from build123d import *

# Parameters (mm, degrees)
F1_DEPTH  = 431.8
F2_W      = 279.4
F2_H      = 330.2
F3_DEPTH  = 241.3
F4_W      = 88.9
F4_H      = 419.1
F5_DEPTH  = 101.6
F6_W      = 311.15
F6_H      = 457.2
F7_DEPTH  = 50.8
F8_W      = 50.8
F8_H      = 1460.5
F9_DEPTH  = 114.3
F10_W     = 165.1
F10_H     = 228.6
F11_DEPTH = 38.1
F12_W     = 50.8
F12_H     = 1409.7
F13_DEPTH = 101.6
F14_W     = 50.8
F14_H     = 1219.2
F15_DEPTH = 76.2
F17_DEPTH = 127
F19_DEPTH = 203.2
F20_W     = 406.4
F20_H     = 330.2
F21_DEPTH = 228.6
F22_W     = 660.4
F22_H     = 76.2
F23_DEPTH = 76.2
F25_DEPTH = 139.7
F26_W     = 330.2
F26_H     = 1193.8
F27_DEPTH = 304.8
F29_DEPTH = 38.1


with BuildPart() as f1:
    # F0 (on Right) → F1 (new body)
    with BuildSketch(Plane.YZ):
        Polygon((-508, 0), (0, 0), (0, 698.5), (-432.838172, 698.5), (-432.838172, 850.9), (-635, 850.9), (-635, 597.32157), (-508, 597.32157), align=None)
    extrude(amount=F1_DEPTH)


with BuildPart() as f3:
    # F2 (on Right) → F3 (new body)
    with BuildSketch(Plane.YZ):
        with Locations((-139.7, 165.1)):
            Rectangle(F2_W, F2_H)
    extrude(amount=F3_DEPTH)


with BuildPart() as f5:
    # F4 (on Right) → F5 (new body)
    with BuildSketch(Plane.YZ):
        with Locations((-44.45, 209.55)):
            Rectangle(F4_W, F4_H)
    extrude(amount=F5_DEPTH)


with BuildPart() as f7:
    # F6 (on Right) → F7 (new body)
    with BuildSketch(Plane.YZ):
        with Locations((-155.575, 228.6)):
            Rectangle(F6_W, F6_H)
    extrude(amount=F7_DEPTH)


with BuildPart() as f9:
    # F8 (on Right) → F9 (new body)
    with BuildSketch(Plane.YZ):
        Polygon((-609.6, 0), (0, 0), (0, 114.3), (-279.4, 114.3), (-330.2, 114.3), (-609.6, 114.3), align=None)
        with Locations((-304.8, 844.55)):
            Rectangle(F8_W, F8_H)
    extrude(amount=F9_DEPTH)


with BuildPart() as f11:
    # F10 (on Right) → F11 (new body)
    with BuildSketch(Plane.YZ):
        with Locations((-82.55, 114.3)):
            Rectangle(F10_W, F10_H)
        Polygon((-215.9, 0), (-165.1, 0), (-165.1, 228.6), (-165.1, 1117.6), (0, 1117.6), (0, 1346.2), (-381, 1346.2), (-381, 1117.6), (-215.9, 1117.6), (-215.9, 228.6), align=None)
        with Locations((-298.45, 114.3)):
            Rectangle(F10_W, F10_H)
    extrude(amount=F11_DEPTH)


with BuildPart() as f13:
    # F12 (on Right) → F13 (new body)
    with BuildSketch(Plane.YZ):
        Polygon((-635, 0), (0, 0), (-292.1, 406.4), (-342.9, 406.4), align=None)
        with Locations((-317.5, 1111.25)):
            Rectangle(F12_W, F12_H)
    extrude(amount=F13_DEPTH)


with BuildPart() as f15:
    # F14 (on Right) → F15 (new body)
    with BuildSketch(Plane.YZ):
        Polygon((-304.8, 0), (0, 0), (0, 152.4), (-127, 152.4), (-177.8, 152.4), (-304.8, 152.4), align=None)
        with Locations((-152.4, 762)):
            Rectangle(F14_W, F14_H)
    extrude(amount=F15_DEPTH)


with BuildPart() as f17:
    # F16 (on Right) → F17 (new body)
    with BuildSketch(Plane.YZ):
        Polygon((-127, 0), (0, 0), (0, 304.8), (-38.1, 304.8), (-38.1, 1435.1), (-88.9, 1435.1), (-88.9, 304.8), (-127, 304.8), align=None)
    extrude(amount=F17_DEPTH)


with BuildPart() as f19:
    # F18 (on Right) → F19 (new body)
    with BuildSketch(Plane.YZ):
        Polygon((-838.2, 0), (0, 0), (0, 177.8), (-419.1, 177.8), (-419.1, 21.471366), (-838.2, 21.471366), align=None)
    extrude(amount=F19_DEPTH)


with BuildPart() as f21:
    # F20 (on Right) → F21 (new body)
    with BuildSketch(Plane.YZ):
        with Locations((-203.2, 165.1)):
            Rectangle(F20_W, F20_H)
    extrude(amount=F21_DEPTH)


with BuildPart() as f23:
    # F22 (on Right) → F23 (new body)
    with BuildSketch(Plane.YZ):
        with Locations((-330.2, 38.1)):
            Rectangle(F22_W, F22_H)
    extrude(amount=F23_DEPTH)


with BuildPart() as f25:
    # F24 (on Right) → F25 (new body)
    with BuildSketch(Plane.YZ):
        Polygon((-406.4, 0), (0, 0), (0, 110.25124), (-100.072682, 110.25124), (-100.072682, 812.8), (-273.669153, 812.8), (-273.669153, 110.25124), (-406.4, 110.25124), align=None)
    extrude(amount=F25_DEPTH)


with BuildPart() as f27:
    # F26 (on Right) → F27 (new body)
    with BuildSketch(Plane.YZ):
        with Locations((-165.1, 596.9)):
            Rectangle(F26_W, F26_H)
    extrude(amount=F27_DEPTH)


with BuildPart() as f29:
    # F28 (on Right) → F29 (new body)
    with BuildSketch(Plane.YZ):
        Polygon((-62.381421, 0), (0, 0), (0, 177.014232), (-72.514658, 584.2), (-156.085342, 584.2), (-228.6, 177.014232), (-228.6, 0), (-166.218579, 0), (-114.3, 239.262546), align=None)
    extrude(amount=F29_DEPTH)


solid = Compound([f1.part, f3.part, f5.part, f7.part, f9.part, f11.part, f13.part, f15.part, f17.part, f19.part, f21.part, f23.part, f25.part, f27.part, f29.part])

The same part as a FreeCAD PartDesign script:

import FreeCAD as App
import Part
import Sketcher
from FreeCAD import Vector
Q = App.Units.Quantity


def add_polygon(sketch, points):
    """Adds a closed chain of lines whose ends are joined by coincident constraints."""
    first, n = sketch.GeometryCount, len(points)
    for a, b in zip(points, points[1:] + points[:1]):
        sketch.addGeometry(Part.LineSegment(App.Vector(*a, 0), App.Vector(*b, 0)), False)
    for i in range(n):
        sketch.addConstraint(Sketcher.Constraint("Coincident", first + i, 2, first + (i + 1) % n, 1))

doc = App.newDocument("Part")
body = doc.addObject("PartDesign::Body", "Body")

# Sketch on YZ plane
sketch1 = doc.addObject("Sketcher::SketchObject", "Sketch")
body.addObject(sketch1)
sketch1.AttachmentSupport = (doc.YZ_Plane, [""])
sketch1.MapMode = "FlatFace"
add_polygon(sketch1, [(-508, 0), (0, 0), (0, 698), (-433, 698), (-433, 851), (-635, 851), (-635, 597), (-508, 597)])  # lines 0-7
sketch1.addConstraint(Sketcher.Constraint("Horizontal", 0))
sketch1.addConstraint(Sketcher.Constraint("Vertical", 1))
sketch1.addConstraint(Sketcher.Constraint("Horizontal", 2))
sketch1.addConstraint(Sketcher.Constraint("Vertical", 3))
sketch1.addConstraint(Sketcher.Constraint("Horizontal", 4))
sketch1.addConstraint(Sketcher.Constraint("Vertical", 5))
sketch1.addConstraint(Sketcher.Constraint("Horizontal", 6))
sketch1.addConstraint(Sketcher.Constraint("Vertical", 7))
sketch1.addConstraint(Sketcher.Constraint("Coincident", 0, 2, -1, 1))
sketch1.addConstraint(Sketcher.Constraint("DistanceX", 0, 1, 0, 2, Q("20 in")))
sketch1.addConstraint(Sketcher.Constraint("DistanceX", 6, 1, 6, 2, Q("5 in")))
sketch1.addConstraint(Sketcher.Constraint("DistanceY", 3, 1, 3, 2, Q("6 in")))
sketch1.addConstraint(Sketcher.Constraint("DistanceY", 1, 1, 1, 2, Q("27.5 in")))
sketch1.addConstraint(Sketcher.Constraint("DistanceX", 2, 2, 2, 1, 432.838172))
sketch1.addConstraint(Sketcher.Constraint("DistanceY", 5, 2, 5, 1, 253.57843))
pad1 = doc.addObject("PartDesign::Pad", "Pad")
body.addObject(pad1)
pad1.Profile = sketch1
pad1.Length = Q("17 in")
body2 = doc.addObject("PartDesign::Body", "Body001")

# Sketch on YZ plane
sketch2 = doc.addObject("Sketcher::SketchObject", "Sketch001")
body2.addObject(sketch2)
sketch2.AttachmentSupport = (doc.getObject("YZ_Plane001"), [""])
sketch2.MapMode = "FlatFace"
add_polygon(sketch2, [(-279, 330), (-279, 0), (0, 0), (0, 330)])  # lines 0-3
sketch2.addConstraint(Sketcher.Constraint("Vertical", 0))
sketch2.addConstraint(Sketcher.Constraint("Horizontal", 1))
sketch2.addConstraint(Sketcher.Constraint("Vertical", 2))
sketch2.addConstraint(Sketcher.Constraint("Horizontal", 3))
sketch2.addConstraint(Sketcher.Constraint("Coincident", 1, 2, -1, 1))
sketch2.addConstraint(Sketcher.Constraint("DistanceX", 1, 1, 1, 2, Q("11 in")))
sketch2.addConstraint(Sketcher.Constraint("DistanceY", 0, 2, 0, 1, Q("13 in")))
pad2 = doc.addObject("PartDesign::Pad", "Pad001")
body2.addObject(pad2)
pad2.Profile = sketch2
pad2.Length = Q("9.5 in")
body3 = doc.addObject("PartDesign::Body", "Body002")

# Sketch on YZ plane
sketch3 = doc.addObject("Sketcher::SketchObject", "Sketch002")
body3.addObject(sketch3)
sketch3.AttachmentSupport = (doc.getObject("YZ_Plane002"), [""])
sketch3.MapMode = "FlatFace"
add_polygon(sketch3, [(-89, 419), (-89, 0), (0, 0), (0, 419)])  # lines 0-3
sketch3.addConstraint(Sketcher.Constraint("Vertical", 0))
sketch3.addConstraint(Sketcher.Constraint("Horizontal", 1))
sketch3.addConstraint(Sketcher.Constraint("Vertical", 2))
sketch3.addConstraint(Sketcher.Constraint("Horizontal", 3))
sketch3.addConstraint(Sketcher.Constraint("Coincident", 1, 2, -1, 1))
sketch3.addConstraint(Sketcher.Constraint("DistanceX", 1, 1, 1, 2, Q("3.5 in")))
sketch3.addConstraint(Sketcher.Constraint("DistanceY", 0, 2, 0, 1, Q("16.5 in")))
pad3 = doc.addObject("PartDesign::Pad", "Pad002")
body3.addObject(pad3)
pad3.Profile = sketch3
pad3.Length = Q("4 in")
body4 = doc.addObject("PartDesign::Body", "Body003")

# Sketch on YZ plane
sketch4 = doc.addObject("Sketcher::SketchObject", "Sketch003")
body4.addObject(sketch4)
sketch4.AttachmentSupport = (doc.getObject("YZ_Plane003"), [""])
sketch4.MapMode = "FlatFace"
add_polygon(sketch4, [(-311, 457), (-311, 0), (0, 0), (0, 457)])  # lines 0-3
sketch4.addConstraint(Sketcher.Constraint("Vertical", 0))
sketch4.addConstraint(Sketcher.Constraint("Horizontal", 1))
sketch4.addConstraint(Sketcher.Constraint("Vertical", 2))
sketch4.addConstraint(Sketcher.Constraint("Horizontal", 3))
sketch4.addConstraint(Sketcher.Constraint("Coincident", 1, 2, -1, 1))
sketch4.addConstraint(Sketcher.Constraint("DistanceY", 0, 2, 0, 1, Q("18 in")))
sketch4.addConstraint(Sketcher.Constraint("DistanceX", 1, 1, 1, 2, Q("12.25 in")))
pad4 = doc.addObject("PartDesign::Pad", "Pad003")
body4.addObject(pad4)
pad4.Profile = sketch4
pad4.Length = Q("2 in")
body5 = doc.addObject("PartDesign::Body", "Body004")

# Sketch on YZ plane
sketch5 = doc.addObject("Sketcher::SketchObject", "Sketch004")
body5.addObject(sketch5)
sketch5.AttachmentSupport = (doc.getObject("YZ_Plane004"), [""])
sketch5.MapMode = "FlatFace"
add_polygon(sketch5, [(-610, 0), (0, 0), (0, 114), (-279, 114), (-279, 1575), (-330, 1575), (-330, 114), (-610, 114)])  # lines 0-7
sketch5.addConstraint(Sketcher.Constraint("Horizontal", 0))
sketch5.addConstraint(Sketcher.Constraint("Vertical", 1))
sketch5.addConstraint(Sketcher.Constraint("Horizontal", 2))
sketch5.addConstraint(Sketcher.Constraint("Vertical", 3))
sketch5.addConstraint(Sketcher.Constraint("Horizontal", 4))
sketch5.addConstraint(Sketcher.Constraint("Vertical", 5))
sketch5.addConstraint(Sketcher.Constraint("Horizontal", 6))
sketch5.addConstraint(Sketcher.Constraint("Vertical", 7))
sketch5.addConstraint(Sketcher.Constraint("Coincident", 0, 2, -1, 1))
sketch5.addConstraint(Sketcher.Constraint("Horizontal", 2, 2, 5, 2))
sketch5.addConstraint(Sketcher.Constraint("Equal", 2, 6))
sketch5.addConstraint(Sketcher.Constraint("DistanceX", 0, 1, 0, 2, Q("24 in")))
sketch5.addConstraint(Sketcher.Constraint("DistanceX", 2, 2, 2, 1, Q("11 in")))
sketch5.addConstraint(Sketcher.Constraint("DistanceY", 1, 1, 1, 2, Q("4.5 in")))
sketch5.addConstraint(Sketcher.Constraint("DistanceY", 3, 1, 3, 2, Q("57.5 in")))
pad5 = doc.addObject("PartDesign::Pad", "Pad004")
body5.addObject(pad5)
pad5.Profile = sketch5
pad5.Length = Q("4.5 in")
body6 = doc.addObject("PartDesign::Body", "Body005")

# Sketch on YZ plane
sketch6 = doc.addObject("Sketcher::SketchObject", "Sketch005")
body6.addObject(sketch6)
sketch6.AttachmentSupport = (doc.getObject("YZ_Plane005"), [""])
sketch6.MapMode = "FlatFace"
add_polygon(sketch6, [(0, 0), (0, 229), (-165, 229), (-165, 1118), (0, 1118), (0, 1346), (-381, 1346), (-381, 1118), (-216, 1118), (-216, 229), (-381, 229), (-381, 0)])  # lines 0-11
sketch6.addConstraint(Sketcher.Constraint("Vertical", 0))
sketch6.addConstraint(Sketcher.Constraint("Horizontal", 1))
sketch6.addConstraint(Sketcher.Constraint("Vertical", 2))
sketch6.addConstraint(Sketcher.Constraint("Horizontal", 3))
sketch6.addConstraint(Sketcher.Constraint("Vertical", 4))
sketch6.addConstraint(Sketcher.Constraint("Horizontal", 5))
sketch6.addConstraint(Sketcher.Constraint("Vertical", 6))
sketch6.addConstraint(Sketcher.Constraint("Horizontal", 7))
sketch6.addConstraint(Sketcher.Constraint("Vertical", 8))
sketch6.addConstraint(Sketcher.Constraint("Horizontal", 9))
sketch6.addConstraint(Sketcher.Constraint("Vertical", 10))
sketch6.addConstraint(Sketcher.Constraint("Horizontal", 11))
sketch6.addConstraint(Sketcher.Constraint("Coincident", 11, 2, -1, 1))
sketch6.addConstraint(Sketcher.Constraint("PointOnObject", 3, 2, -2))
sketch6.addConstraint(Sketcher.Constraint("Horizontal", 3, 2, 6, 2))
sketch6.addConstraint(Sketcher.Constraint("Horizontal", 1, 2, 8, 2))
sketch6.addConstraint(Sketcher.Constraint("Vertical", 6, 2, 9, 2))
sketch6.addConstraint(Sketcher.Constraint("Equal", 3, 7))
sketch6.addConstraint(Sketcher.Constraint("Equal", 0, 4))
sketch6.addConstraint(Sketcher.Constraint("DistanceX", 5, 2, 5, 1, Q("15 in")))
sketch6.addConstraint(Sketcher.Constraint("DistanceY", 0, 1, 0, 2, Q("9 in")))
sketch6.addConstraint(Sketcher.Constraint("DistanceY", 2, 1, 2, 2, Q("35 in")))
sketch6.addConstraint(Sketcher.Constraint("DistanceX", 1, 2, 1, 1, Q("6.5 in")))
pad6 = doc.addObject("PartDesign::Pad", "Pad005")
body6.addObject(pad6)
pad6.Profile = sketch6
pad6.Length = Q("1.5 in")
body7 = doc.addObject("PartDesign::Body", "Body006")

# Sketch on YZ plane
sketch7 = doc.addObject("Sketcher::SketchObject", "Sketch006")
body7.addObject(sketch7)
sketch7.AttachmentSupport = (doc.getObject("YZ_Plane006"), [""])
sketch7.MapMode = "FlatFace"
add_polygon(sketch7, [(-635, 0), (0, 0), (-292, 406), (-292, 1816), (-343, 1816), (-343, 406)])  # lines 0-5
sketch7.addConstraint(Sketcher.Constraint("Horizontal", 0))
sketch7.addConstraint(Sketcher.Constraint("Vertical", 2))
sketch7.addConstraint(Sketcher.Constraint("Horizontal", 3))
sketch7.addConstraint(Sketcher.Constraint("Vertical", 4))
sketch7.addConstraint(Sketcher.Constraint("Coincident", 0, 2, -1, 1))
sketch7.addConstraint(Sketcher.Constraint("Horizontal", 1, 2, 4, 2))
sketch7.addConstraint(Sketcher.Constraint("Equal", 1, 5))
sketch7.addConstraint(Sketcher.Constraint("DistanceX", 0, 1, 0, 2, Q("25 in")))
sketch7.addConstraint(Sketcher.Constraint("DistanceX", 3, 2, 3, 1, Q("2 in")))
sketch7.addConstraint(Sketcher.Constraint("DistanceY", 2, 1, 2, 2, Q("55.5 in")))
sketch7.addConstraint(Sketcher.Constraint("DistanceY", -1, 1, 1, 2, Q("16 in")))
pad7 = doc.addObject("PartDesign::Pad", "Pad006")
body7.addObject(pad7)
pad7.Profile = sketch7
pad7.Length = Q("4 in")
body8 = doc.addObject("PartDesign::Body", "Body007")

# Sketch on YZ plane
sketch8 = doc.addObject("Sketcher::SketchObject", "Sketch007")
body8.addObject(sketch8)
sketch8.AttachmentSupport = (doc.getObject("YZ_Plane007"), [""])
sketch8.MapMode = "FlatFace"
add_polygon(sketch8, [(-305, 0), (0, 0), (0, 152), (-127, 152), (-127, 1372), (-178, 1372), (-178, 152), (-305, 152)])  # lines 0-7
sketch8.addConstraint(Sketcher.Constraint("Horizontal", 0))
sketch8.addConstraint(Sketcher.Constraint("Vertical", 1))
sketch8.addConstraint(Sketcher.Constraint("Horizontal", 2))
sketch8.addConstraint(Sketcher.Constraint("Vertical", 3))
sketch8.addConstraint(Sketcher.Constraint("Horizontal", 4))
sketch8.addConstraint(Sketcher.Constraint("Vertical", 5))
sketch8.addConstraint(Sketcher.Constraint("Horizontal", 6))
sketch8.addConstraint(Sketcher.Constraint("Vertical", 7))
sketch8.addConstraint(Sketcher.Constraint("Coincident", 0, 2, -1, 1))
sketch8.addConstraint(Sketcher.Constraint("Horizontal", 2, 2, 5, 2))
sketch8.addConstraint(Sketcher.Constraint("Equal", 2, 6))
sketch8.addConstraint(Sketcher.Constraint("DistanceX", 0, 1, 0, 2, Q("12 in")))
sketch8.addConstraint(Sketcher.Constraint("DistanceX", 2, 2, 2, 1, Q("5 in")))
sketch8.addConstraint(Sketcher.Constraint("DistanceY", 1, 1, 1, 2, Q("6 in")))
sketch8.addConstraint(Sketcher.Constraint("DistanceY", 3, 1, 3, 2, Q("48 in")))
pad8 = doc.addObject("PartDesign::Pad", "Pad007")
body8.addObject(pad8)
pad8.Profile = sketch8
pad8.Length = Q("3 in")
body9 = doc.addObject("PartDesign::Body", "Body008")

# Sketch on YZ plane
sketch9 = doc.addObject("Sketcher::SketchObject", "Sketch008")
body9.addObject(sketch9)
sketch9.AttachmentSupport = (doc.getObject("YZ_Plane008"), [""])
sketch9.MapMode = "FlatFace"
add_polygon(sketch9, [(-127, 0), (0, 0), (0, 305), (-38, 305), (-38, 1435), (-89, 1435), (-89, 305), (-127, 305)])  # lines 0-7
sketch9.addConstraint(Sketcher.Constraint("Horizontal", 0))
sketch9.addConstraint(Sketcher.Constraint("Vertical", 1))
sketch9.addConstraint(Sketcher.Constraint("Horizontal", 2))
sketch9.addConstraint(Sketcher.Constraint("Vertical", 3))
sketch9.addConstraint(Sketcher.Constraint("Horizontal", 4))
sketch9.addConstraint(Sketcher.Constraint("Vertical", 5))
sketch9.addConstraint(Sketcher.Constraint("Horizontal", 6))
sketch9.addConstraint(Sketcher.Constraint("Vertical", 7))
sketch9.addConstraint(Sketcher.Constraint("Coincident", 0, 2, -1, 1))
sketch9.addConstraint(Sketcher.Constraint("Horizontal", 2, 2, 5, 2))
sketch9.addConstraint(Sketcher.Constraint("Equal", 2, 6))
sketch9.addConstraint(Sketcher.Constraint("DistanceX", 0, 1, 0, 2, Q("5 in")))
sketch9.addConstraint(Sketcher.Constraint("DistanceX", 4, 2, 4, 1, Q("2 in")))
sketch9.addConstraint(Sketcher.Constraint("DistanceY", 1, 1, 1, 2, Q("12 in")))
sketch9.addConstraint(Sketcher.Constraint("DistanceY", 3, 1, 3, 2, Q("44.5 in")))
pad9 = doc.addObject("PartDesign::Pad", "Pad008")
body9.addObject(pad9)
pad9.Profile = sketch9
pad9.Length = Q("5 in")
body10 = doc.addObject("PartDesign::Body", "Body009")

# Sketch on YZ plane
sketch10 = doc.addObject("Sketcher::SketchObject", "Sketch009")
body10.addObject(sketch10)
sketch10.AttachmentSupport = (doc.getObject("YZ_Plane009"), [""])
sketch10.MapMode = "FlatFace"
add_polygon(sketch10, [(-838, 0), (0, 0), (0, 178), (-419, 178), (-419, 21), (-838, 21)])  # lines 0-5
sketch10.addConstraint(Sketcher.Constraint("Horizontal", 0))
sketch10.addConstraint(Sketcher.Constraint("Vertical", 1))
sketch10.addConstraint(Sketcher.Constraint("Horizontal", 2))
sketch10.addConstraint(Sketcher.Constraint("Vertical", 3))
sketch10.addConstraint(Sketcher.Constraint("Horizontal", 4))
sketch10.addConstraint(Sketcher.Constraint("Vertical", 5))
sketch10.addConstraint(Sketcher.Constraint("Coincident", 0, 2, -1, 1))
sketch10.addConstraint(Sketcher.Constraint("Equal", 2, 4))
sketch10.addConstraint(Sketcher.Constraint("DistanceX", 0, 1, 0, 2, Q("33 in")))
sketch10.addConstraint(Sketcher.Constraint("DistanceY", 1, 1, 1, 2, Q("7 in")))
sketch10.addConstraint(Sketcher.Constraint("DistanceY", 3, 2, 3, 1, 156.328634))
pad10 = doc.addObject("PartDesign::Pad", "Pad009")
body10.addObject(pad10)
pad10.Profile = sketch10
pad10.Length = Q("8 in")
body11 = doc.addObject("PartDesign::Body", "Body010")

# Sketch on YZ plane
sketch11 = doc.addObject("Sketcher::SketchObject", "Sketch010")
body11.addObject(sketch11)
sketch11.AttachmentSupport = (doc.getObject("YZ_Plane010"), [""])
sketch11.MapMode = "FlatFace"
add_polygon(sketch11, [(-406, 330), (-406, 0), (0, 0), (0, 330)])  # lines 0-3
sketch11.addConstraint(Sketcher.Constraint("Vertical", 0))
sketch11.addConstraint(Sketcher.Constraint("Horizontal", 1))
sketch11.addConstraint(Sketcher.Constraint("Vertical", 2))
sketch11.addConstraint(Sketcher.Constraint("Horizontal", 3))
sketch11.addConstraint(Sketcher.Constraint("Coincident", 1, 2, -1, 1))
sketch11.addConstraint(Sketcher.Constraint("DistanceX", 1, 1, 1, 2, Q("16 in")))
sketch11.addConstraint(Sketcher.Constraint("DistanceY", 0, 2, 0, 1, Q("13 in")))
pad11 = doc.addObject("PartDesign::Pad", "Pad010")
body11.addObject(pad11)
pad11.Profile = sketch11
pad11.Length = Q("9 in")
body12 = doc.addObject("PartDesign::Body", "Body011")

# Sketch on YZ plane
sketch12 = doc.addObject("Sketcher::SketchObject", "Sketch011")
body12.addObject(sketch12)
sketch12.AttachmentSupport = (doc.getObject("YZ_Plane011"), [""])
sketch12.MapMode = "FlatFace"
add_polygon(sketch12, [(-660, 76), (-660, 0), (0, 0), (0, 76)])  # lines 0-3
sketch12.addConstraint(Sketcher.Constraint("Vertical", 0))
sketch12.addConstraint(Sketcher.Constraint("Horizontal", 1))
sketch12.addConstraint(Sketcher.Constraint("Vertical", 2))
sketch12.addConstraint(Sketcher.Constraint("Horizontal", 3))
sketch12.addConstraint(Sketcher.Constraint("Coincident", 1, 2, -1, 1))
sketch12.addConstraint(Sketcher.Constraint("DistanceX", 1, 1, 1, 2, Q("26 in")))
sketch12.addConstraint(Sketcher.Constraint("DistanceY", 0, 2, 0, 1, Q("3 in")))
pad12 = doc.addObject("PartDesign::Pad", "Pad011")
body12.addObject(pad12)
pad12.Profile = sketch12
pad12.Length = Q("3 in")
body13 = doc.addObject("PartDesign::Body", "Body012")

# Sketch on YZ plane
sketch13 = doc.addObject("Sketcher::SketchObject", "Sketch012")
body13.addObject(sketch13)
sketch13.AttachmentSupport = (doc.getObject("YZ_Plane012"), [""])
sketch13.MapMode = "FlatFace"
add_polygon(sketch13, [(-406, 0), (0, 0), (0, 110), (-100, 110), (-100, 813), (-274, 813), (-274, 110), (-406, 110)])  # lines 0-7
sketch13.addConstraint(Sketcher.Constraint("Horizontal", 0))
sketch13.addConstraint(Sketcher.Constraint("Vertical", 1))
sketch13.addConstraint(Sketcher.Constraint("Horizontal", 2))
sketch13.addConstraint(Sketcher.Constraint("Vertical", 3))
sketch13.addConstraint(Sketcher.Constraint("Horizontal", 4))
sketch13.addConstraint(Sketcher.Constraint("Vertical", 5))
sketch13.addConstraint(Sketcher.Constraint("Horizontal", 6))
sketch13.addConstraint(Sketcher.Constraint("Vertical", 7))
sketch13.addConstraint(Sketcher.Constraint("Coincident", 0, 2, -1, 1))
sketch13.addConstraint(Sketcher.Constraint("Horizontal", 2, 2, 5, 2))
sketch13.addConstraint(Sketcher.Constraint("DistanceX", 0, 1, 0, 2, Q("16 in")))
sketch13.addConstraint(Sketcher.Constraint("DistanceY", -1, 1, 3, 2, Q("32 in")))
sketch13.addConstraint(Sketcher.Constraint("DistanceY", 1, 1, 1, 2, Q("4.3406 in")))
sketch13.addConstraint(Sketcher.Constraint("DistanceX", 2, 2, 2, 1, 100.072682))
sketch13.addConstraint(Sketcher.Constraint("DistanceX", 4, 2, 4, 1, 173.596471))
pad13 = doc.addObject("PartDesign::Pad", "Pad012")
body13.addObject(pad13)
pad13.Profile = sketch13
pad13.Length = Q("5.5 in")
body14 = doc.addObject("PartDesign::Body", "Body013")

# Sketch on YZ plane
sketch14 = doc.addObject("Sketcher::SketchObject", "Sketch013")
body14.addObject(sketch14)
sketch14.AttachmentSupport = (doc.getObject("YZ_Plane013"), [""])
sketch14.MapMode = "FlatFace"
add_polygon(sketch14, [(-330, 1194), (-330, 0), (0, 0), (0, 1194)])  # lines 0-3
sketch14.addConstraint(Sketcher.Constraint("Vertical", 0))
sketch14.addConstraint(Sketcher.Constraint("Horizontal", 1))
sketch14.addConstraint(Sketcher.Constraint("Vertical", 2))
sketch14.addConstraint(Sketcher.Constraint("Horizontal", 3))
sketch14.addConstraint(Sketcher.Constraint("Coincident", 1, 2, -1, 1))
sketch14.addConstraint(Sketcher.Constraint("DistanceX", 1, 1, 1, 2, Q("13 in")))
sketch14.addConstraint(Sketcher.Constraint("DistanceY", 0, 2, 0, 1, Q("47 in")))
pad14 = doc.addObject("PartDesign::Pad", "Pad013")
body14.addObject(pad14)
pad14.Profile = sketch14
pad14.Length = Q("12 in")
body15 = doc.addObject("PartDesign::Body", "Body014")

# Sketch on YZ plane
sketch15 = doc.addObject("Sketcher::SketchObject", "Sketch014")
body15.addObject(sketch15)
sketch15.AttachmentSupport = (doc.getObject("YZ_Plane014"), [""])
sketch15.MapMode = "FlatFace"
add_polygon(sketch15, [(-62, 0), (0, 0), (0, 177), (-73, 584), (-156, 584), (-229, 177), (-229, 0), (-166, 0), (-114, 239)])  # lines 0-8
sketch15.addConstraint(Sketcher.Constraint("Horizontal", 0))
sketch15.addConstraint(Sketcher.Constraint("Vertical", 1))
sketch15.addConstraint(Sketcher.Constraint("Horizontal", 3))
sketch15.addConstraint(Sketcher.Constraint("Vertical", 5))
sketch15.addConstraint(Sketcher.Constraint("Horizontal", 6))
sketch15.addConstraint(Sketcher.Constraint("Coincident", 0, 2, -1, 1))
sketch15.addConstraint(Sketcher.Constraint("PointOnObject", 5, 2, -1))
sketch15.addConstraint(Sketcher.Constraint("Horizontal", 1, 2, 4, 2))
sketch15.addConstraint(Sketcher.Constraint("Equal", 0, 6))
sketch15.addConstraint(Sketcher.Constraint("Equal", 2, 4))
sketch15.addConstraint(Sketcher.Constraint("Equal", 7, 8))
sketch15.addConstraint(Sketcher.Constraint("DistanceY", -1, 1, 2, 2, Q("23 in")))
sketch15.addConstraint(Sketcher.Constraint("DistanceX", 4, 2, -1, 1, Q("9 in")))
sketch15.addConstraint(Sketcher.Constraint("DistanceX", 0, 1, 0, 2, 62.381421))
sketch15.addConstraint(Sketcher.Constraint("DistanceY", 1, 1, 1, 2, 177.014232))
sketch15.addConstraint(Sketcher.Constraint("Distance", 2, 413.592342))
sketch15.addConstraint(Sketcher.Constraint("Distance", 7, 244.830768))
pad15 = doc.addObject("PartDesign::Pad", "Pad014")
body15.addObject(pad15)
pad15.Profile = sketch15
pad15.Length = Q("1.5 in")

doc.recompute()
